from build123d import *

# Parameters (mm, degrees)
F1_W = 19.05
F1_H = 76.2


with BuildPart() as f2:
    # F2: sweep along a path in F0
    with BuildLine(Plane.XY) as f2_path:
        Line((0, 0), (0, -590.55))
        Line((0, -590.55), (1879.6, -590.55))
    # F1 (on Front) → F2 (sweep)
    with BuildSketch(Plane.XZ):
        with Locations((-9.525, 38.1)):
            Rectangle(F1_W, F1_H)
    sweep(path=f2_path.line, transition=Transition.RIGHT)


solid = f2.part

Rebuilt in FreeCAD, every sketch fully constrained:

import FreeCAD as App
import Part
import Sketcher

V = App.Vector
Q = App.Units.Quantity


def add_polygon(sketch, points):
    """Adds a closed chain of lines whose ends are joined by coincident constraints."""
    first, n = sketch.GeometryCount, len(points)
    for a, b in zip(points, points[1:] + points[:1]):
        sketch.addGeometry(Part.LineSegment(App.Vector(*a, 0), App.Vector(*b, 0)), False)
    for i in range(n):
        sketch.addConstraint(Sketcher.Constraint("Coincident", first + i, 2, first + (i + 1) % n, 1))

doc = App.newDocument("Part")
body = doc.addObject("PartDesign::Body", "Body")

sketch1 = doc.addObject("Sketcher::SketchObject", "Sketch")
body.addObject(sketch1)
sketch1.AttachmentSupport = (doc.XZ_Plane, [""])
sketch1.MapMode = "FlatFace"
add_polygon(sketch1, [(-19, 76), (-19, 0), (0, 0), (0, 76)])
sketch1.addConstraint([
    Sketcher.Constraint("Vertical", 0),
    Sketcher.Constraint("Horizontal", 1),
    Sketcher.Constraint("Vertical", 2),
    Sketcher.Constraint("Horizontal", 3),
    Sketcher.Constraint("Coincident", 1, 2, -1, 1),
    Sketcher.Constraint("DistanceY", 0, 2, 0, 1, Q("3 in")),
    Sketcher.Constraint("DistanceX", 1, 1, 1, 2, Q("0.75 in")),
])

sketch2 = doc.addObject("Sketcher::SketchObject", "Sketch001")
body.addObject(sketch2)
sketch2.AttachmentSupport = (doc.XY_Plane, [""])
sketch2.MapMode = "FlatFace"
sketch2.addGeometry([
    Part.LineSegment(V(0, 0, 0), V(0, -591, 0)),
    Part.LineSegment(V(0, -591, 0), V(1880, -591, 0)),
], False)
sketch2.addConstraint([
    Sketcher.Constraint("Coincident", 0, 2, 1, 1),
    Sketcher.Constraint("Vertical", 0),
    Sketcher.Constraint("Horizontal", 1),
    Sketcher.Constraint("Coincident", 0, 1, -1, 1),
    Sketcher.Constraint("DistanceX", 1, 1, 1, 2, Q("74 in")),
    Sketcher.Constraint("DistanceY", 0, 2, 0, 1, Q("23.25 in")),
])
doc.recompute()

additivepipe = doc.addObject("PartDesign::AdditivePipe", "AdditivePipe")
body.addObject(additivepipe)
additivepipe.Profile = sketch1
additivepipe.Spine = (sketch2, ["Edge1", "Edge2"])
additivepipe.Transition = "Right corner"

doc.recompute()
